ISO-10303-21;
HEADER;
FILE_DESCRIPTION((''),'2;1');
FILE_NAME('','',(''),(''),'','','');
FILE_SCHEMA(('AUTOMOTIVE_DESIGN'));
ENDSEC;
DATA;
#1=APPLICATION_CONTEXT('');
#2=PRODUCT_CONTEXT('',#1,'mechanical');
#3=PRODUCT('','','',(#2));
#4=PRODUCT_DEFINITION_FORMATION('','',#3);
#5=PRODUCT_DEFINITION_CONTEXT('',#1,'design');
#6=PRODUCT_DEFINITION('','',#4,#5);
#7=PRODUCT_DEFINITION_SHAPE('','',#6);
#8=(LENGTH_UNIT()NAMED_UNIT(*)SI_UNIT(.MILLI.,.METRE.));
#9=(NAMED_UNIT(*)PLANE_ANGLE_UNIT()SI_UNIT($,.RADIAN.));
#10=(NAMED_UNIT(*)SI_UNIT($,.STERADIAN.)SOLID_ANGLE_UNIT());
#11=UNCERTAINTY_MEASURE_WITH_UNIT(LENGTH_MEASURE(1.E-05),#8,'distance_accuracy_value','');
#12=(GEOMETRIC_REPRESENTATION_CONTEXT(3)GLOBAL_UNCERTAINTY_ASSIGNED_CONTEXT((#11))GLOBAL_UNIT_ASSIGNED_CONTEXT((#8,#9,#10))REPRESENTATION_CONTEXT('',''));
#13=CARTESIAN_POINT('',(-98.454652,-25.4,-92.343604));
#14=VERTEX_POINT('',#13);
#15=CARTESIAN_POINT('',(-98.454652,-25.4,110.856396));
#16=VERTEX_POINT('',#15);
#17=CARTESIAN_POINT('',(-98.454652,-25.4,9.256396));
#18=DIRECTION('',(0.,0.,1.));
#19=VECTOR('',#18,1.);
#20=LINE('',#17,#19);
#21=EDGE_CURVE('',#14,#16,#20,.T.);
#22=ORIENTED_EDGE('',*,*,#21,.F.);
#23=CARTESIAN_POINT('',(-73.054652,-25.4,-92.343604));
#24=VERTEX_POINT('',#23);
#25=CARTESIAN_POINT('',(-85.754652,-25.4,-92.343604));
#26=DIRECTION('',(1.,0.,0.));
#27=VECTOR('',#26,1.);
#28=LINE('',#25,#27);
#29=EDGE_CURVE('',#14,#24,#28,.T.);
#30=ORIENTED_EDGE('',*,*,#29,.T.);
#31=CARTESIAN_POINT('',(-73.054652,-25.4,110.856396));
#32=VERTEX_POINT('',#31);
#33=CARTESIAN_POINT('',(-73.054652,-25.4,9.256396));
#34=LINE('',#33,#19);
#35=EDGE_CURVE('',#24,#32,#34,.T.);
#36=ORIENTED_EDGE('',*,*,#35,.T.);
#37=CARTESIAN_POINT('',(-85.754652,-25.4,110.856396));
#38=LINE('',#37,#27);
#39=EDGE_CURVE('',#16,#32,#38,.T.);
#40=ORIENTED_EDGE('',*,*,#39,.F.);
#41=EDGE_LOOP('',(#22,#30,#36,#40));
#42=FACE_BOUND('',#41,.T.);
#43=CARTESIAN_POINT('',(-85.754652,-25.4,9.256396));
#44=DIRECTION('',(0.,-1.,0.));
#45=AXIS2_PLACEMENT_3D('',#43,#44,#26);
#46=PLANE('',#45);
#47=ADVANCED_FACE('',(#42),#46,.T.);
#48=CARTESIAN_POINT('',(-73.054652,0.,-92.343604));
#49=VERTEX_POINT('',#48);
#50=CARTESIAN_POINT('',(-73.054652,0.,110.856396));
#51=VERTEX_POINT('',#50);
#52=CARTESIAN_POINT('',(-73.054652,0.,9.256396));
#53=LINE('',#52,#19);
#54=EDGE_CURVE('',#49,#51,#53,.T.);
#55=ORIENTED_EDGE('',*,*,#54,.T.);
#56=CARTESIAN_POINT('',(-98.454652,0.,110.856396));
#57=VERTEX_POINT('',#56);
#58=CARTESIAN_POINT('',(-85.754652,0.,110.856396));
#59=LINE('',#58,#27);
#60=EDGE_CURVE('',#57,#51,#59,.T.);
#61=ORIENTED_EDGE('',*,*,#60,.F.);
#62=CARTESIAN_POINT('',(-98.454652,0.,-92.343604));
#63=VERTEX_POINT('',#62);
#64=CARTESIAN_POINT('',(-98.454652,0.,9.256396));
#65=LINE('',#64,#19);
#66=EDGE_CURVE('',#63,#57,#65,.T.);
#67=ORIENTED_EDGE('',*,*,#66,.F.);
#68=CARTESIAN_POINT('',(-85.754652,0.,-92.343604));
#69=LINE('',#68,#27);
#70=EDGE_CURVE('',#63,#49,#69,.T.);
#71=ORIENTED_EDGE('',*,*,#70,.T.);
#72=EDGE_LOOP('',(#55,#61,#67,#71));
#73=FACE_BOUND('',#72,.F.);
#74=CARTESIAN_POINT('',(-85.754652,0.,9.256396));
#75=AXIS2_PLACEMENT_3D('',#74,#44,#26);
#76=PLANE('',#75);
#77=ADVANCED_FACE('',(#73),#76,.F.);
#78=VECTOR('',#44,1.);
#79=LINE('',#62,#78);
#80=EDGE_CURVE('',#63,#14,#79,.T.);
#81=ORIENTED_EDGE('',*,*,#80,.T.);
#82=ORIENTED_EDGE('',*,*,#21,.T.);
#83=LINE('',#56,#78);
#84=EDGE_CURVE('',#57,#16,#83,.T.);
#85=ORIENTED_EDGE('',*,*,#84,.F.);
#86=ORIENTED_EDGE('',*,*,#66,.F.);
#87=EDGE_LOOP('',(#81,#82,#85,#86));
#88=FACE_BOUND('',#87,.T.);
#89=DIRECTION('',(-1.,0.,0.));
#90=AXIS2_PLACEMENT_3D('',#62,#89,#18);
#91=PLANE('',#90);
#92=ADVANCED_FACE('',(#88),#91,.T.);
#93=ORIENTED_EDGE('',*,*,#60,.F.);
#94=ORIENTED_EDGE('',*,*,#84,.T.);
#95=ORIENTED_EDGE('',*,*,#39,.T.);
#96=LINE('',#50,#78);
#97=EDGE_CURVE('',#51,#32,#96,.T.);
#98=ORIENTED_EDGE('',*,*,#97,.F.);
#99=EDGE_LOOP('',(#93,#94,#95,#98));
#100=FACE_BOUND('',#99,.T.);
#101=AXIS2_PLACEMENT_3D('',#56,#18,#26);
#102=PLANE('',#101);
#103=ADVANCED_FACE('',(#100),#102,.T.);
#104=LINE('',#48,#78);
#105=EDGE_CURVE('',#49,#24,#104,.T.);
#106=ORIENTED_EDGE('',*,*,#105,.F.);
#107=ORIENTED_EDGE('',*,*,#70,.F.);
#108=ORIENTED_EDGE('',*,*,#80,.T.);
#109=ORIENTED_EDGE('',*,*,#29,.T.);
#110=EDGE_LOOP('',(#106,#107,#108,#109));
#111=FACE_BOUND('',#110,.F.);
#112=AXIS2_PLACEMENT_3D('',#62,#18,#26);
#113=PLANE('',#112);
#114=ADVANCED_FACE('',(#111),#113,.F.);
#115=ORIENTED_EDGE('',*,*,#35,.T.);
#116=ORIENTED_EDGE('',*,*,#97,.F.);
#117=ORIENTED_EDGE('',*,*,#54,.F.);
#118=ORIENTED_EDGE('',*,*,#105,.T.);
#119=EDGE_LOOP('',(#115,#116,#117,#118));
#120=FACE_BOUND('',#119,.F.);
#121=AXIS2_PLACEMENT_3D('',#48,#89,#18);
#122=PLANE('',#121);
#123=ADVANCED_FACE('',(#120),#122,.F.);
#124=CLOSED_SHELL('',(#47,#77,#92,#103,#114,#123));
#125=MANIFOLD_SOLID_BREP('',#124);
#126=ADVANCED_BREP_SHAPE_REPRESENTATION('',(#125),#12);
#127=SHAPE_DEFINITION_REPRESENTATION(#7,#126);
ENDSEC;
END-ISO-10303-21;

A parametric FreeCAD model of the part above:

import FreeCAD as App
import Part
import Sketcher
Q = App.Units.Quantity

doc = App.newDocument("Part")
body = doc.addObject("PartDesign::Body", "Body")

# Sketch on YZ plane
sketch1 = body.newObject("Sketcher::SketchObject", "Sketch")
sketch1.AttachmentSupport = (doc.getObject("YZ_Plane"), [""])
sketch1.MapMode = "FlatFace"
sketch1.addGeometry([
    Part.LineSegment(App.Vector(93, 87, 0), App.Vector(-59, 87, 0)),
    Part.LineSegment(App.Vector(-59, 87, 0), App.Vector(-59, -66, 0)),
    Part.LineSegment(App.Vector(-59, -66, 0), App.Vector(93, -66, 0)),
    Part.LineSegment(App.Vector(93, -66, 0), App.Vector(93, 87, 0)),
], False)
sketch1.addConstraint([
    Sketcher.Constraint("Coincident", 0, 2, 1, 1),
    Sketcher.Constraint("Coincident", 1, 2, 2, 1),
    Sketcher.Constraint("Coincident", 2, 2, 3, 1),
    Sketcher.Constraint("Coincident", 3, 2, 0, 1),
    Sketcher.Constraint("Horizontal", 0),
    Sketcher.Constraint("Vertical", 1),
    Sketcher.Constraint("Horizontal", 2),
    Sketcher.Constraint("Vertical", 3),
    Sketcher.Constraint("Equal", 2, 1),
    Sketcher.Constraint("DistanceX", 0, 2, 0, 1, Q("6 in")),
    Sketcher.Constraint("DistanceX", 0, 2, -1, 1, Q("58.916821 mm")),
    Sketcher.Constraint("DistanceY", -1, 1, 0, 2, Q("86.794061 mm")),
])
pad1 = body.newObject("PartDesign::Pad", "Pad")
pad1.Profile = sketch1
pad1.Length = Q("1 in")
body2 = doc.addObject("PartDesign::Body", "Body001")

# Sketch on XZ plane
sketch2 = body2.newObject("Sketcher::SketchObject", "Sketch001")
sketch2.AttachmentSupport = (doc.getObject("XZ_Plane001"), [""])
sketch2.MapMode = "FlatFace"
sketch2.addGeometry([
    Part.LineSegment(App.Vector(-98, 111, 0), App.Vector(-98, -92, 0)),
    Part.LineSegment(App.Vector(-98, -92, 0), App.Vector(-73, -92, 0)),
    Part.LineSegment(App.Vector(-73, -92, 0), App.Vector(-73, 111, 0)),
    Part.LineSegment(App.Vector(-73, 111, 0), App.Vector(-98, 111, 0)),
], False)
sketch2.addConstraint([
    Sketcher.Constraint("Coincident", 0, 2, 1, 1),
    Sketcher.Constraint("Coincident", 1, 2, 2, 1),
    Sketcher.Constraint("Coincident", 2, 2, 3, 1),
    Sketcher.Constraint("Coincident", 3, 2, 0, 1),
    Sketcher.Constraint("Vertical", 0),
    Sketcher.Constraint("Horizontal", 1),
    Sketcher.Constraint("Vertical", 2),
    Sketcher.Constraint("Horizontal", 3),
    Sketcher.Constraint("DistanceX", 1, 1, 1, 2, Q("1 in")),
    Sketcher.Constraint("DistanceY", 0, 2, 0, 1, Q("8 in")),
    Sketcher.Constraint("DistanceX", 0, 2, -1, 1, Q("98.454652 mm")),
    Sketcher.Constraint("DistanceY", 0, 2, -1, 1, Q("92.343604 mm")),
])
pad2 = body2.newObject("PartDesign::Pad", "Pad001")
pad2.Profile = sketch2
pad2.Length = Q("1 in")
body.Visibility = False

doc.recompute()
